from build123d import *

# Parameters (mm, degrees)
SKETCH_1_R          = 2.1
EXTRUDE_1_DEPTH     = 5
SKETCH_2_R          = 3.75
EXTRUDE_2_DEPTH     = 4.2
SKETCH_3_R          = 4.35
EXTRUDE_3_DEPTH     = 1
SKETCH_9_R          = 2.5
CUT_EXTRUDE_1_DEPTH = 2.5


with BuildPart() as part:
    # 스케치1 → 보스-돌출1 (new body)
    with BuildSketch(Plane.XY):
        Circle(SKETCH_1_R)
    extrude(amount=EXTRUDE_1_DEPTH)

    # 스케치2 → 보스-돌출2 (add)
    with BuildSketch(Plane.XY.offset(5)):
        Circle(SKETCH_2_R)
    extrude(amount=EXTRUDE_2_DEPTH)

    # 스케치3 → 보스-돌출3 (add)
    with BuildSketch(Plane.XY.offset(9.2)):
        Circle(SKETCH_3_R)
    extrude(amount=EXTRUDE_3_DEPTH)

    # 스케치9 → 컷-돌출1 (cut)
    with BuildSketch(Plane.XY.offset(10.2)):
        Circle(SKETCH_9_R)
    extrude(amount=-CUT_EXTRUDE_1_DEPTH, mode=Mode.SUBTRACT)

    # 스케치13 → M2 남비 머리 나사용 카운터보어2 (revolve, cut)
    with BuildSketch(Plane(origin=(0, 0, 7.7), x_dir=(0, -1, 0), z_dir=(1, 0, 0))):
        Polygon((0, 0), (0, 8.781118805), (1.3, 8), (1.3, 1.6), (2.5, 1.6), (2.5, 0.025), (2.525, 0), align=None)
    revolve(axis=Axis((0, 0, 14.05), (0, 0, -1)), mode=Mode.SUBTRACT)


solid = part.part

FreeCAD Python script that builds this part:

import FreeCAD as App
import Part
import Sketcher
from FreeCAD import Vector
Q = App.Units.Quantity

doc = App.newDocument("Part")
body = doc.addObject("PartDesign::Body", "Body")

sketch1 = doc.addObject("Sketcher::SketchObject", "Sketch")
body.addObject(sketch1)
sketch1.AttachmentSupport = (doc.XY_Plane, [""])
sketch1.MapMode = "FlatFace"
sketch1.addGeometry(Part.Circle(Vector(0, 0, 0), Vector(0, 0, 1), 2.1), False)
sketch1.addConstraint(Sketcher.Constraint("Coincident", 0, 3, -1, 1))
sketch1.addConstraint(Sketcher.Constraint("Diameter", 0, 4.2))
pad1 = doc.addObject("PartDesign::Pad", "Pad")
body.addObject(pad1)
pad1.Profile = sketch1
pad1.Length = 5

sketch2 = doc.addObject("Sketcher::SketchObject", "Sketch001")
body.addObject(sketch2)
sketch2.AttachmentSupport = (doc.XY_Plane, [""])
sketch2.MapMode = "FlatFace"
sketch2.AttachmentOffset = App.Placement(Vector(0, 0, 5), App.Rotation())
sketch2.addGeometry(Part.Circle(Vector(0, 0, 0), Vector(0, 0, 1), 3.75), False)
sketch2.addConstraint(Sketcher.Constraint("Coincident", 0, 3, -1, 1))
sketch2.addConstraint(Sketcher.Constraint("Diameter", 0, 7.5))
pad2 = doc.addObject("PartDesign::Pad", "Pad001")
body.addObject(pad2)
pad2.Profile = sketch2
pad2.Length = 4.2

sketch3 = doc.addObject("Sketcher::SketchObject", "Sketch002")
body.addObject(sketch3)
sketch3.AttachmentSupport = (doc.XY_Plane, [""])
sketch3.MapMode = "FlatFace"
sketch3.AttachmentOffset = App.Placement(Vector(0, 0, 9.2), App.Rotation())
sketch3.addGeometry(Part.Circle(Vector(0, 0, 0), Vector(0, 0, 1), 4.35), False)
sketch3.addConstraint(Sketcher.Constraint("Coincident", 0, 3, -1, 1))
sketch3.addConstraint(Sketcher.Constraint("Diameter", 0, 8.7))
pad3 = doc.addObject("PartDesign::Pad", "Pad002")
body.addObject(pad3)
pad3.Profile = sketch3
pad3.Length = 1

sketch4 = doc.addObject("Sketcher::SketchObject", "Sketch003")
body.addObject(sketch4)
sketch4.AttachmentSupport = (doc.XY_Plane, [""])
sketch4.MapMode = "FlatFace"
sketch4.AttachmentOffset = App.Placement(Vector(0, 0, 10.2), App.Rotation())
sketch4.addGeometry(Part.Circle(Vector(0, 0, 0), Vector(0, 0, 1), 2.5), False)
sketch4.addConstraint(Sketcher.Constraint("Coincident", 0, 3, -1, 1))
sketch4.addConstraint(Sketcher.Constraint("Diameter", 0, 5.0))
pocket1 = doc.addObject("PartDesign::Pocket", "Pocket")
body.addObject(pocket1)
pocket1.Profile = sketch4
pocket1.Length = 2.5

sketch5 = doc.addObject("Sketcher::SketchObject", "Sketch004")
body.addObject(sketch5)
sketch5.AttachmentSupport = (doc.YZ_Plane, [""])
sketch5.MapMode = "FlatFace"
sketch5.addGeometry(Part.LineSegment(Vector(0, -1.081119, 0), Vector(0, 7.7, 0)), False)
sketch5.addGeometry(Part.LineSegment(Vector(0, 7.7, 0), Vector(-2.525, 7.7, 0)), False)
sketch5.addGeometry(Part.LineSegment(Vector(-2.525, 7.7, 0), Vector(-2.5, 7.675, 0)), False)
sketch5.addGeometry(Part.LineSegment(Vector(-2.5, 7.675, 0), Vector(-2.5, 6.1, 0)), False)
sketch5.addGeometry(Part.LineSegment(Vector(-2.5, 6.1, 0), Vector(-1.3, 6.1, 0)), False)
sketch5.addGeometry(Part.LineSegment(Vector(-1.3, 6.1, 0), Vector(-1.3, -0.3, 0)), False)
sketch5.addGeometry(Part.LineSegment(Vector(-1.3, -0.3, 0), Vector(0, -1.081119, 0)), False)
sketch5.addConstraint(Sketcher.Constraint("Coincident", 0, 2, 1, 1))
sketch5.addConstraint(Sketcher.Constraint("Coincident", 1, 2, 2, 1))
sketch5.addConstraint(Sketcher.Constraint("Coincident", 2, 2, 3, 1))
sketch5.addConstraint(Sketcher.Constraint("Coincident", 3, 2, 4, 1))
sketch5.addConstraint(Sketcher.Constraint("Coincident", 4, 2, 5, 1))
sketch5.addConstraint(Sketcher.Constraint("Coincident", 5, 2, 6, 1))
sketch5.addConstraint(Sketcher.Constraint("Coincident", 6, 2, 0, 1))
sketch5.addConstraint(Sketcher.Constraint("Vertical", 0))
sketch5.addConstraint(Sketcher.Constraint("Horizontal", 1))
sketch5.addConstraint(Sketcher.Constraint("Vertical", 3))
sketch5.addConstraint(Sketcher.Constraint("Horizontal", 4))
sketch5.addConstraint(Sketcher.Constraint("Vertical", 5))
sketch5.addConstraint(Sketcher.Constraint("PointOnObject", 0, 2, -2))
sketch5.addConstraint(Sketcher.Constraint("Angle", 2, Q("-45 deg")))
sketch5.addConstraint(Sketcher.Constraint("Angle", 6, Q("-31 deg")))
sketch5.addConstraint(Sketcher.Constraint("DistanceX", 4, 1, 4, 2, 1.2))
sketch5.addConstraint(Sketcher.Constraint("DistanceY", 5, 2, 5, 1, 6.4))
sketch5.addConstraint(Sketcher.Constraint("DistanceY", 5, 2, 1, 2, 8.0))
sketch5.addConstraint(Sketcher.Constraint("DistanceY", -1, 1, 0, 2, 7.7))
sketch5.addConstraint(Sketcher.Constraint("DistanceX", 2, 2, -1, 1, 2.5))
sketch5.addConstraint(Sketcher.Constraint("DistanceX", 1, 2, 1, 1, 2.525))
groove = doc.addObject("PartDesign::Groove", "Groove")
body.addObject(groove)
groove.Profile = sketch5
groove.ReferenceAxis = (sketch5, ["V_Axis"])
groove.Angle = 360

doc.recompute()
